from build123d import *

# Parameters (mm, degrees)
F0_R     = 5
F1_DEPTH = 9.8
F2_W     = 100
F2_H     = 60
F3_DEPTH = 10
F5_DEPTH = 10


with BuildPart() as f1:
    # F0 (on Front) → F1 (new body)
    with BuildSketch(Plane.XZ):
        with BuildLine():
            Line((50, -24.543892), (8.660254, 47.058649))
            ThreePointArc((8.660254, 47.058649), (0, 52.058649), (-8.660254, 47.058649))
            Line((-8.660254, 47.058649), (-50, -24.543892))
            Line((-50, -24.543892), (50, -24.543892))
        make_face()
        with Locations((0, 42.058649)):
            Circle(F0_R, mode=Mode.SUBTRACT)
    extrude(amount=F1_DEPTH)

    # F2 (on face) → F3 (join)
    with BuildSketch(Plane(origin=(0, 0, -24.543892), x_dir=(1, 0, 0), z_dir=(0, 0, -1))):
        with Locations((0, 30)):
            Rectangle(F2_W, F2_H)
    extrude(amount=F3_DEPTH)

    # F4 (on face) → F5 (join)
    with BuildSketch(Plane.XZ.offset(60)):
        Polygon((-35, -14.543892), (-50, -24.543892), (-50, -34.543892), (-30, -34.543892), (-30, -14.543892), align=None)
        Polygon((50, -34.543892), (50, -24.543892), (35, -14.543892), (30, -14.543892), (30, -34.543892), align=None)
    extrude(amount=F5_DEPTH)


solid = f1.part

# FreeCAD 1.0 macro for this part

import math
import FreeCAD as App
import Part
import Sketcher
Q = App.Units.Quantity

doc = App.newDocument("Part")
body = doc.addObject("PartDesign::Body", "Body")

# Sketch on XZ plane
sketch1 = body.newObject("Sketcher::SketchObject", "Sketch")
sketch1.AttachmentSupport = (doc.getObject("XZ_Plane"), [""])
sketch1.MapMode = "FlatFace"
sketch1.addGeometry([
    Part.LineSegment(App.Vector(50, -25, 0), App.Vector(9, 47, 0)),  # 0
    Part.ArcOfCircle(Part.Circle(App.Vector(0, 42, 0), App.Vector(0, 0, 1), 10), math.radians(30), math.radians(150)),  # 1
    Part.LineSegment(App.Vector(-9, 47, 0), App.Vector(-50, -25, 0)),  # 2
    Part.LineSegment(App.Vector(-50, -25, 0), App.Vector(50, -25, 0)),  # 3
    Part.Circle(App.Vector(0, 42, 0), App.Vector(0, 0, 1), 5),  # 4
], False)
sketch1.addConstraint([
    Sketcher.Constraint("Tangent", 0, 2, 1, 1),
    Sketcher.Constraint("Tangent", 1, 2, 2, 1),
    Sketcher.Constraint("Coincident", 2, 2, 3, 1),
    Sketcher.Constraint("Coincident", 3, 2, 0, 1),
    Sketcher.Constraint("Horizontal", 3),
    Sketcher.Constraint("Coincident", 4, 3, 1, 3),
    Sketcher.Constraint("Symmetric", 0, 2, 1, 2, -2),
    Sketcher.Constraint("Diameter", 4, 10.0),
    Sketcher.Constraint("Radius", 1, 10.0),
    Sketcher.Constraint("DistanceX", 3, 1, 3, 2, 100.0),
    Sketcher.Constraint("Angle", 0, Q("120 deg")),
    Sketcher.Constraint("DistanceY", -1, 1, 1, 3, 42.058649),
])
pad1 = body.newObject("PartDesign::Pad", "Pad")
pad1.Profile = sketch1
pad1.Length = 9.8

# Sketch on XY plane
sketch2 = body.newObject("Sketcher::SketchObject", "Sketch001")
sketch2.AttachmentSupport = (doc.getObject("XY_Plane"), [""])
sketch2.MapMode = "FlatFace"
sketch2.AttachmentOffset = App.Placement(App.Vector(0, 0, -24.543892), App.Rotation())
sketch2.addGeometry([
    Part.LineSegment(App.Vector(-50, -60, 0), App.Vector(-50, 0, 0)),
    Part.LineSegment(App.Vector(-50, 0, 0), App.Vector(50, 0, 0)),
    Part.LineSegment(App.Vector(50, 0, 0), App.Vector(50, -60, 0)),
    Part.LineSegment(App.Vector(50, -60, 0), App.Vector(-50, -60, 0)),
], False)
sketch2.addConstraint([
    Sketcher.Constraint("Coincident", 0, 2, 1, 1),
    Sketcher.Constraint("Coincident", 1, 2, 2, 1),
    Sketcher.Constraint("Coincident", 2, 2, 3, 1),
    Sketcher.Constraint("Coincident", 3, 2, 0, 1),
    Sketcher.Constraint("Vertical", 0),
    Sketcher.Constraint("Horizontal", 1),
    Sketcher.Constraint("Vertical", 2),
    Sketcher.Constraint("Horizontal", 3),
    Sketcher.Constraint("Symmetric", 0, 2, 1, 2, -1, 1),
    Sketcher.Constraint("DistanceX", 1, 1, 1, 2, 100.0),
    Sketcher.Constraint("DistanceY", 0, 1, 0, 2, 60.0),
])
pad2 = body.newObject("PartDesign::Pad", "Pad001")
pad2.Profile = sketch2
pad2.Length = 10
pad2.Reversed = True

# Sketch on XZ plane
sketch3 = body.newObject("Sketcher::SketchObject", "Sketch002")
sketch3.AttachmentSupport = (doc.getObject("XZ_Plane"), [""])
sketch3.MapMode = "FlatFace"
sketch3.AttachmentOffset = App.Placement(App.Vector(0, 0, 60), App.Rotation())
sketch3.addGeometry([
    Part.LineSegment(App.Vector(-35, -15, 0), App.Vector(-50, -25, 0)),  # 0
    Part.LineSegment(App.Vector(-50, -25, 0), App.Vector(-50, -35, 0)),  # 1
    Part.LineSegment(App.Vector(-50, -35, 0), App.Vector(-30, -35, 0)),  # 2
    Part.LineSegment(App.Vector(-30, -35, 0), App.Vector(-30, -15, 0)),  # 3
    Part.LineSegment(App.Vector(-30, -15, 0), App.Vector(-35, -15, 0)),  # 4
    Part.LineSegment(App.Vector(50, -35, 0), App.Vector(50, -25, 0)),  # 5
    Part.LineSegment(App.Vector(50, -25, 0), App.Vector(35, -15, 0)),  # 6
    Part.LineSegment(App.Vector(35, -15, 0), App.Vector(30, -15, 0)),  # 7
    Part.LineSegment(App.Vector(30, -15, 0), App.Vector(30, -35, 0)),  # 8
    Part.LineSegment(App.Vector(30, -35, 0), App.Vector(50, -35, 0)),  # 9
], False)
sketch3.addConstraint([
    Sketcher.Constraint("Coincident", 0, 2, 1, 1),
    Sketcher.Constraint("Coincident", 1, 2, 2, 1),
    Sketcher.Constraint("Coincident", 2, 2, 3, 1),
    Sketcher.Constraint("Coincident", 3, 2, 4, 1),
    Sketcher.Constraint("Coincident", 4, 2, 0, 1),
    Sketcher.Constraint("Coincident", 5, 2, 6, 1),
    Sketcher.Constraint("Coincident", 6, 2, 7, 1),
    Sketcher.Constraint("Coincident", 7, 2, 8, 1),
    Sketcher.Constraint("Coincident", 8, 2, 9, 1),
    Sketcher.Constraint("Coincident", 9, 2, 5, 1),
    Sketcher.Constraint("Vertical", 1),
    Sketcher.Constraint("Horizontal", 2),
    Sketcher.Constraint("Vertical", 3),
    Sketcher.Constraint("Horizontal", 4),
    Sketcher.Constraint("Vertical", 5),
    Sketcher.Constraint("Horizontal", 7),
    Sketcher.Constraint("Vertical", 8),
    Sketcher.Constraint("Horizontal", 9),
    Sketcher.Constraint("Symmetric", 0, 2, 5, 2, -2),
    Sketcher.Constraint("Symmetric", 4, 2, 6, 2, -2),
    Sketcher.Constraint("Symmetric", 2, 2, 8, 2, -2),
    Sketcher.Constraint("Equal", 9, 3),
    Sketcher.Constraint("DistanceX", 2, 1, 2, 2, 20.0),
    Sketcher.Constraint("DistanceX", 4, 2, 4, 1, 5.0),
    Sketcher.Constraint("DistanceY", 1, 2, 1, 1, 10.0),
    Sketcher.Constraint("DistanceX", 0, 2, -1, 1, 50.0),
    Sketcher.Constraint("DistanceY", 0, 2, -1, 1, 24.543892),
])
pad3 = body.newObject("PartDesign::Pad", "Pad002")
pad3.Profile = sketch3
pad3.Length = 10

doc.recompute()
